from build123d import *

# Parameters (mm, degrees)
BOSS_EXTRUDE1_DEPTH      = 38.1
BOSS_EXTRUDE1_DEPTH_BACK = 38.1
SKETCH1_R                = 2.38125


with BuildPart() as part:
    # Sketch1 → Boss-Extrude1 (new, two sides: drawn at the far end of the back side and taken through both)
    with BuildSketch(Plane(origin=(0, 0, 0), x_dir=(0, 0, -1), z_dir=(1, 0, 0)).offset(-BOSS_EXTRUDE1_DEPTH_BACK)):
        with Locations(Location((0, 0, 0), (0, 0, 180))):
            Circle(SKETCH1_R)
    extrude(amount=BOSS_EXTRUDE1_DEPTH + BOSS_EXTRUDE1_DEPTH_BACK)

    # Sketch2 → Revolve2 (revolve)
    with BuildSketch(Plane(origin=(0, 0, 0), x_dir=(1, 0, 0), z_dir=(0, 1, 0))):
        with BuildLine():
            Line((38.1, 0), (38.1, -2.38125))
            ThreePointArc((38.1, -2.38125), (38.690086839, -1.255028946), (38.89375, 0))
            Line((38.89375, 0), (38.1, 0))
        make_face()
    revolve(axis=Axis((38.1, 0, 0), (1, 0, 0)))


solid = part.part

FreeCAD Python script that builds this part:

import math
import FreeCAD as App
import Part
import Sketcher
from FreeCAD import Vector
Q = App.Units.Quantity

doc = App.newDocument("Part")
body = doc.addObject("PartDesign::Body", "Body")

sketch1 = body.newObject("Sketcher::SketchObject", "Sketch")
sketch1.AttachmentSupport = (doc.getObject("YZ_Plane"), [""])
sketch1.MapMode = "FlatFace"
sketch1.addGeometry(Part.Circle(Vector(0, 0, 0), Vector(0, 0, 1), 2.4), False)
sketch1.addConstraint(Sketcher.Constraint("Coincident", 0, 3, -1, 1))
sketch1.addConstraint(Sketcher.Constraint("Diameter", 0, Q("0.1875 in")))
pad1 = body.newObject("PartDesign::Pad", "Pad")
pad1.Profile = sketch1
pad1.Type = "TwoLengths"
pad1.Length = Q("1.5 in")
pad1.Length2 = Q("1.5 in")

sketch2 = body.newObject("Sketcher::SketchObject", "Sketch001")
sketch2.AttachmentSupport = (doc.getObject("XZ_Plane"), [""])
sketch2.MapMode = "FlatFace"
sketch2.addGeometry(Part.LineSegment(Vector(38.1, 0, 0), Vector(38.1, 2.4, 0)), False)
sketch2.addGeometry(Part.ArcOfCircle(Part.Circle(Vector(34.9, 0, 0), Vector(0, 0, 1), 4), math.radians(0), math.radians(37)), False)
sketch2.addGeometry(Part.LineSegment(Vector(38.9, 0, 0), Vector(38.1, 0, 0)), False)
sketch2.addConstraint(Sketcher.Constraint("Coincident", 0, 2, 1, 2))
sketch2.addConstraint(Sketcher.Constraint("Coincident", 1, 1, 2, 1))
sketch2.addConstraint(Sketcher.Constraint("Coincident", 2, 2, 0, 1))
sketch2.addConstraint(Sketcher.Constraint("Vertical", 0))
sketch2.addConstraint(Sketcher.Constraint("Horizontal", 2))
sketch2.addConstraint(Sketcher.Constraint("PointOnObject", 1, 3, -1))
sketch2.addConstraint(Sketcher.Constraint("PointOnObject", 1, 1, -1))
sketch2.addConstraint(Sketcher.Constraint("Radius", 1, Q("0.15625 in")))
sketch2.addConstraint(Sketcher.Constraint("DistanceX", -1, 1, 0, 2, Q("1.5 in")))
sketch2.addConstraint(Sketcher.Constraint("DistanceX", 2, 2, 2, 1, Q("0.03125 in")))
revolution = body.newObject("PartDesign::Revolution", "Revolution")
revolution.Profile = sketch2
revolution.ReferenceAxis = (sketch2, ["H_Axis"])
revolution.Angle = 360

doc.recompute()
